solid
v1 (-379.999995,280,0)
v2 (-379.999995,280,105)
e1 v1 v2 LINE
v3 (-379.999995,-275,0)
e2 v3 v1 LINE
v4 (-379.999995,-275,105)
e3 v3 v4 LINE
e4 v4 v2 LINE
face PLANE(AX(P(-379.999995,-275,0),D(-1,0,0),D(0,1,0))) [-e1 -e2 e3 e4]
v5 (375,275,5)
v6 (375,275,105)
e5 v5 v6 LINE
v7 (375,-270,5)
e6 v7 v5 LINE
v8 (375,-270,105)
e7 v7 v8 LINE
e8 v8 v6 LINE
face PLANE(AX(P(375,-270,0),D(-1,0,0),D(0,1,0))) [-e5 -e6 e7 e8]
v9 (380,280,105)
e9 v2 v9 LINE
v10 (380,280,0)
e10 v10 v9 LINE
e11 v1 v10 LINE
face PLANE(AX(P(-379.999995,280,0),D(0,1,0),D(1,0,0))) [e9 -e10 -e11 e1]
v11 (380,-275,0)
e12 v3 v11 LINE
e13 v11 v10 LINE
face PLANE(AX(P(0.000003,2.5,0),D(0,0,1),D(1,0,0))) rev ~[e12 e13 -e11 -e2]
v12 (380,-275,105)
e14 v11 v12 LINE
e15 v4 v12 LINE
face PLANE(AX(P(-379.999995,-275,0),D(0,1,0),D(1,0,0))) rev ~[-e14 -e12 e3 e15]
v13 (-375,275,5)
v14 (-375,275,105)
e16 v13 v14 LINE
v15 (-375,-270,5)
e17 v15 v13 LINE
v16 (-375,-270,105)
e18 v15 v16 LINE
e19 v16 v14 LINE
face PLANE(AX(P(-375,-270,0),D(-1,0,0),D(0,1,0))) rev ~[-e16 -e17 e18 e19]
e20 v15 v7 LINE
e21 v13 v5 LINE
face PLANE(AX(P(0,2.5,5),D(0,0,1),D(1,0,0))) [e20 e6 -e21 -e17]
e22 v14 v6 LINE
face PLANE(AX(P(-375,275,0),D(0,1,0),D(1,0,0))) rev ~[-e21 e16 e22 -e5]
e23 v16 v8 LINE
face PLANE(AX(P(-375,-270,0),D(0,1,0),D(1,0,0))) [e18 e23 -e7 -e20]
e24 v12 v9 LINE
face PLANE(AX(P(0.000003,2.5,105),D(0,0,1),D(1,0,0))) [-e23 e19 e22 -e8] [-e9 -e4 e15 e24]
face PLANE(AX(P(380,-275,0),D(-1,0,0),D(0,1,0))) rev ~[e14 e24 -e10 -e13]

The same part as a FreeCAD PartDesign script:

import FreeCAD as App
import Part
import Sketcher
Q = App.Units.Quantity

doc = App.newDocument("Part")
params = doc.addObject("Spreadsheet::Sheet", "Params")
for row, (alias, value) in enumerate([
    ("sketch1_width", "750 mm"),
    ("sketch1_height", "545 mm"),
    ("pad1_length", "5 mm"),
    ("sketch2_width", "750 mm"),
    ("sketch2_height", "555 mm"),
    ("sketch2_height2", "545 mm"),
    ("pad2_length", "105 mm"),
], start=1):
    params.set(f"A{row}", alias)
    params.set(f"B{row}", "=" + value)
    params.setAlias(f"B{row}", alias)

body = doc.addObject("PartDesign::Body", "Body")

# Sketch on XY plane
sketch1 = body.newObject("Sketcher::SketchObject", "Sketch")
sketch1.AttachmentSupport = (doc.getObject("XY_Plane"), [""])
sketch1.MapMode = "FlatFace"
sketch1.addGeometry([
    Part.LineSegment(App.Vector(-375, 275, 0), App.Vector(-375, -270, 0)),
    Part.LineSegment(App.Vector(-375, -270, 0), App.Vector(375, -270, 0)),
    Part.LineSegment(App.Vector(375, -270, 0), App.Vector(375, 275, 0)),
    Part.LineSegment(App.Vector(375, 275, 0), App.Vector(-375, 275, 0)),
], False)
sketch1.addConstraint([
    Sketcher.Constraint("Coincident", 0, 2, 1, 1),
    Sketcher.Constraint("Coincident", 1, 2, 2, 1),
    Sketcher.Constraint("Coincident", 2, 2, 3, 1),
    Sketcher.Constraint("Coincident", 3, 2, 0, 1),
    Sketcher.Constraint("Vertical", 0),
    Sketcher.Constraint("Horizontal", 1),
    Sketcher.Constraint("Vertical", 2),
    Sketcher.Constraint("Horizontal", 3),
    Sketcher.Constraint("DistanceX", 1, 1, 1, 2, Q("750 mm")),
    Sketcher.Constraint("DistanceY", 0, 2, 0, 1, Q("545 mm")),
    Sketcher.Constraint("DistanceX", 0, 2, -1, 1, Q("375 mm")),
    Sketcher.Constraint("DistanceY", 0, 2, -1, 1, Q("270 mm")),
])
sketch1.setExpression("Constraints[8]", "Params.sketch1_width")
sketch1.setExpression("Constraints[9]", "Params.sketch1_height")
pad1 = body.newObject("PartDesign::Pad", "Pad")
pad1.Profile = sketch1
pad1.setExpression("Length", "Params.pad1_length")

# Sketch on XY plane
sketch2 = body.newObject("Sketcher::SketchObject", "Sketch001")
sketch2.AttachmentSupport = (doc.getObject("XY_Plane"), [""])
sketch2.MapMode = "FlatFace"
sketch2.addGeometry([
    Part.LineSegment(App.Vector(-379.999995, 280, 0), App.Vector(-379.999995, -275, 0)),  # 0
    Part.LineSegment(App.Vector(-379.999995, -275, 0), App.Vector(380, -275, 0)),  # 1
    Part.LineSegment(App.Vector(380, -275, 0), App.Vector(380, 280, 0)),  # 2
    Part.LineSegment(App.Vector(380, 280, 0), App.Vector(-379.999995, 280, 0)),  # 3
    Part.LineSegment(App.Vector(375, -270, 0), App.Vector(-375, -270, 0)),  # 4
    Part.LineSegment(App.Vector(-375, -270, 0), App.Vector(-375, 275, 0)),  # 5
    Part.LineSegment(App.Vector(-375, 275, 0), App.Vector(375, 275, 0)),  # 6
    Part.LineSegment(App.Vector(375, 275, 0), App.Vector(375, -270, 0)),  # 7
], False)
sketch2.addConstraint([
    Sketcher.Constraint("Coincident", 0, 2, 1, 1),
    Sketcher.Constraint("Coincident", 1, 2, 2, 1),
    Sketcher.Constraint("Coincident", 2, 2, 3, 1),
    Sketcher.Constraint("Coincident", 3, 2, 0, 1),
    Sketcher.Constraint("Coincident", 4, 2, 5, 1),
    Sketcher.Constraint("Coincident", 5, 2, 6, 1),
    Sketcher.Constraint("Coincident", 6, 2, 7, 1),
    Sketcher.Constraint("Coincident", 7, 2, 4, 1),
    Sketcher.Constraint("Vertical", 0),
    Sketcher.Constraint("Horizontal", 1),
    Sketcher.Constraint("Vertical", 2),
    Sketcher.Constraint("Horizontal", 3),
    Sketcher.Constraint("Horizontal", 4),
    Sketcher.Constraint("Vertical", 5),
    Sketcher.Constraint("Horizontal", 6),
    Sketcher.Constraint("Vertical", 7),
    Sketcher.Constraint("DistanceX", 4, 2, 4, 1, Q("750 mm")),
    Sketcher.Constraint("DistanceY", 0, 2, 0, 1, Q("555 mm")),
    Sketcher.Constraint("DistanceY", 5, 1, 5, 2, Q("545 mm")),
    Sketcher.Constraint("DistanceY", 0, 2, -1, 1, Q("275 mm")),
    Sketcher.Constraint("DistanceX", -1, 1, 1, 2, Q("380 mm")),
    Sketcher.Constraint("DistanceX", 4, 2, -1, 1, Q("375 mm")),
    Sketcher.Constraint("DistanceY", 4, 2, -1, 1, Q("270 mm")),
    Sketcher.Constraint("DistanceX", 1, 1, 1, 2, Q("759.999995 mm")),
])
sketch2.setExpression("Constraints[16]", "Params.sketch2_width")
sketch2.setExpression("Constraints[17]", "Params.sketch2_height")
sketch2.setExpression("Constraints[18]", "Params.sketch2_height2")
pad2 = body.newObject("PartDesign::Pad", "Pad001")
pad2.Profile = sketch2
pad2.setExpression("Length", "Params.pad2_length")

doc.recompute()
